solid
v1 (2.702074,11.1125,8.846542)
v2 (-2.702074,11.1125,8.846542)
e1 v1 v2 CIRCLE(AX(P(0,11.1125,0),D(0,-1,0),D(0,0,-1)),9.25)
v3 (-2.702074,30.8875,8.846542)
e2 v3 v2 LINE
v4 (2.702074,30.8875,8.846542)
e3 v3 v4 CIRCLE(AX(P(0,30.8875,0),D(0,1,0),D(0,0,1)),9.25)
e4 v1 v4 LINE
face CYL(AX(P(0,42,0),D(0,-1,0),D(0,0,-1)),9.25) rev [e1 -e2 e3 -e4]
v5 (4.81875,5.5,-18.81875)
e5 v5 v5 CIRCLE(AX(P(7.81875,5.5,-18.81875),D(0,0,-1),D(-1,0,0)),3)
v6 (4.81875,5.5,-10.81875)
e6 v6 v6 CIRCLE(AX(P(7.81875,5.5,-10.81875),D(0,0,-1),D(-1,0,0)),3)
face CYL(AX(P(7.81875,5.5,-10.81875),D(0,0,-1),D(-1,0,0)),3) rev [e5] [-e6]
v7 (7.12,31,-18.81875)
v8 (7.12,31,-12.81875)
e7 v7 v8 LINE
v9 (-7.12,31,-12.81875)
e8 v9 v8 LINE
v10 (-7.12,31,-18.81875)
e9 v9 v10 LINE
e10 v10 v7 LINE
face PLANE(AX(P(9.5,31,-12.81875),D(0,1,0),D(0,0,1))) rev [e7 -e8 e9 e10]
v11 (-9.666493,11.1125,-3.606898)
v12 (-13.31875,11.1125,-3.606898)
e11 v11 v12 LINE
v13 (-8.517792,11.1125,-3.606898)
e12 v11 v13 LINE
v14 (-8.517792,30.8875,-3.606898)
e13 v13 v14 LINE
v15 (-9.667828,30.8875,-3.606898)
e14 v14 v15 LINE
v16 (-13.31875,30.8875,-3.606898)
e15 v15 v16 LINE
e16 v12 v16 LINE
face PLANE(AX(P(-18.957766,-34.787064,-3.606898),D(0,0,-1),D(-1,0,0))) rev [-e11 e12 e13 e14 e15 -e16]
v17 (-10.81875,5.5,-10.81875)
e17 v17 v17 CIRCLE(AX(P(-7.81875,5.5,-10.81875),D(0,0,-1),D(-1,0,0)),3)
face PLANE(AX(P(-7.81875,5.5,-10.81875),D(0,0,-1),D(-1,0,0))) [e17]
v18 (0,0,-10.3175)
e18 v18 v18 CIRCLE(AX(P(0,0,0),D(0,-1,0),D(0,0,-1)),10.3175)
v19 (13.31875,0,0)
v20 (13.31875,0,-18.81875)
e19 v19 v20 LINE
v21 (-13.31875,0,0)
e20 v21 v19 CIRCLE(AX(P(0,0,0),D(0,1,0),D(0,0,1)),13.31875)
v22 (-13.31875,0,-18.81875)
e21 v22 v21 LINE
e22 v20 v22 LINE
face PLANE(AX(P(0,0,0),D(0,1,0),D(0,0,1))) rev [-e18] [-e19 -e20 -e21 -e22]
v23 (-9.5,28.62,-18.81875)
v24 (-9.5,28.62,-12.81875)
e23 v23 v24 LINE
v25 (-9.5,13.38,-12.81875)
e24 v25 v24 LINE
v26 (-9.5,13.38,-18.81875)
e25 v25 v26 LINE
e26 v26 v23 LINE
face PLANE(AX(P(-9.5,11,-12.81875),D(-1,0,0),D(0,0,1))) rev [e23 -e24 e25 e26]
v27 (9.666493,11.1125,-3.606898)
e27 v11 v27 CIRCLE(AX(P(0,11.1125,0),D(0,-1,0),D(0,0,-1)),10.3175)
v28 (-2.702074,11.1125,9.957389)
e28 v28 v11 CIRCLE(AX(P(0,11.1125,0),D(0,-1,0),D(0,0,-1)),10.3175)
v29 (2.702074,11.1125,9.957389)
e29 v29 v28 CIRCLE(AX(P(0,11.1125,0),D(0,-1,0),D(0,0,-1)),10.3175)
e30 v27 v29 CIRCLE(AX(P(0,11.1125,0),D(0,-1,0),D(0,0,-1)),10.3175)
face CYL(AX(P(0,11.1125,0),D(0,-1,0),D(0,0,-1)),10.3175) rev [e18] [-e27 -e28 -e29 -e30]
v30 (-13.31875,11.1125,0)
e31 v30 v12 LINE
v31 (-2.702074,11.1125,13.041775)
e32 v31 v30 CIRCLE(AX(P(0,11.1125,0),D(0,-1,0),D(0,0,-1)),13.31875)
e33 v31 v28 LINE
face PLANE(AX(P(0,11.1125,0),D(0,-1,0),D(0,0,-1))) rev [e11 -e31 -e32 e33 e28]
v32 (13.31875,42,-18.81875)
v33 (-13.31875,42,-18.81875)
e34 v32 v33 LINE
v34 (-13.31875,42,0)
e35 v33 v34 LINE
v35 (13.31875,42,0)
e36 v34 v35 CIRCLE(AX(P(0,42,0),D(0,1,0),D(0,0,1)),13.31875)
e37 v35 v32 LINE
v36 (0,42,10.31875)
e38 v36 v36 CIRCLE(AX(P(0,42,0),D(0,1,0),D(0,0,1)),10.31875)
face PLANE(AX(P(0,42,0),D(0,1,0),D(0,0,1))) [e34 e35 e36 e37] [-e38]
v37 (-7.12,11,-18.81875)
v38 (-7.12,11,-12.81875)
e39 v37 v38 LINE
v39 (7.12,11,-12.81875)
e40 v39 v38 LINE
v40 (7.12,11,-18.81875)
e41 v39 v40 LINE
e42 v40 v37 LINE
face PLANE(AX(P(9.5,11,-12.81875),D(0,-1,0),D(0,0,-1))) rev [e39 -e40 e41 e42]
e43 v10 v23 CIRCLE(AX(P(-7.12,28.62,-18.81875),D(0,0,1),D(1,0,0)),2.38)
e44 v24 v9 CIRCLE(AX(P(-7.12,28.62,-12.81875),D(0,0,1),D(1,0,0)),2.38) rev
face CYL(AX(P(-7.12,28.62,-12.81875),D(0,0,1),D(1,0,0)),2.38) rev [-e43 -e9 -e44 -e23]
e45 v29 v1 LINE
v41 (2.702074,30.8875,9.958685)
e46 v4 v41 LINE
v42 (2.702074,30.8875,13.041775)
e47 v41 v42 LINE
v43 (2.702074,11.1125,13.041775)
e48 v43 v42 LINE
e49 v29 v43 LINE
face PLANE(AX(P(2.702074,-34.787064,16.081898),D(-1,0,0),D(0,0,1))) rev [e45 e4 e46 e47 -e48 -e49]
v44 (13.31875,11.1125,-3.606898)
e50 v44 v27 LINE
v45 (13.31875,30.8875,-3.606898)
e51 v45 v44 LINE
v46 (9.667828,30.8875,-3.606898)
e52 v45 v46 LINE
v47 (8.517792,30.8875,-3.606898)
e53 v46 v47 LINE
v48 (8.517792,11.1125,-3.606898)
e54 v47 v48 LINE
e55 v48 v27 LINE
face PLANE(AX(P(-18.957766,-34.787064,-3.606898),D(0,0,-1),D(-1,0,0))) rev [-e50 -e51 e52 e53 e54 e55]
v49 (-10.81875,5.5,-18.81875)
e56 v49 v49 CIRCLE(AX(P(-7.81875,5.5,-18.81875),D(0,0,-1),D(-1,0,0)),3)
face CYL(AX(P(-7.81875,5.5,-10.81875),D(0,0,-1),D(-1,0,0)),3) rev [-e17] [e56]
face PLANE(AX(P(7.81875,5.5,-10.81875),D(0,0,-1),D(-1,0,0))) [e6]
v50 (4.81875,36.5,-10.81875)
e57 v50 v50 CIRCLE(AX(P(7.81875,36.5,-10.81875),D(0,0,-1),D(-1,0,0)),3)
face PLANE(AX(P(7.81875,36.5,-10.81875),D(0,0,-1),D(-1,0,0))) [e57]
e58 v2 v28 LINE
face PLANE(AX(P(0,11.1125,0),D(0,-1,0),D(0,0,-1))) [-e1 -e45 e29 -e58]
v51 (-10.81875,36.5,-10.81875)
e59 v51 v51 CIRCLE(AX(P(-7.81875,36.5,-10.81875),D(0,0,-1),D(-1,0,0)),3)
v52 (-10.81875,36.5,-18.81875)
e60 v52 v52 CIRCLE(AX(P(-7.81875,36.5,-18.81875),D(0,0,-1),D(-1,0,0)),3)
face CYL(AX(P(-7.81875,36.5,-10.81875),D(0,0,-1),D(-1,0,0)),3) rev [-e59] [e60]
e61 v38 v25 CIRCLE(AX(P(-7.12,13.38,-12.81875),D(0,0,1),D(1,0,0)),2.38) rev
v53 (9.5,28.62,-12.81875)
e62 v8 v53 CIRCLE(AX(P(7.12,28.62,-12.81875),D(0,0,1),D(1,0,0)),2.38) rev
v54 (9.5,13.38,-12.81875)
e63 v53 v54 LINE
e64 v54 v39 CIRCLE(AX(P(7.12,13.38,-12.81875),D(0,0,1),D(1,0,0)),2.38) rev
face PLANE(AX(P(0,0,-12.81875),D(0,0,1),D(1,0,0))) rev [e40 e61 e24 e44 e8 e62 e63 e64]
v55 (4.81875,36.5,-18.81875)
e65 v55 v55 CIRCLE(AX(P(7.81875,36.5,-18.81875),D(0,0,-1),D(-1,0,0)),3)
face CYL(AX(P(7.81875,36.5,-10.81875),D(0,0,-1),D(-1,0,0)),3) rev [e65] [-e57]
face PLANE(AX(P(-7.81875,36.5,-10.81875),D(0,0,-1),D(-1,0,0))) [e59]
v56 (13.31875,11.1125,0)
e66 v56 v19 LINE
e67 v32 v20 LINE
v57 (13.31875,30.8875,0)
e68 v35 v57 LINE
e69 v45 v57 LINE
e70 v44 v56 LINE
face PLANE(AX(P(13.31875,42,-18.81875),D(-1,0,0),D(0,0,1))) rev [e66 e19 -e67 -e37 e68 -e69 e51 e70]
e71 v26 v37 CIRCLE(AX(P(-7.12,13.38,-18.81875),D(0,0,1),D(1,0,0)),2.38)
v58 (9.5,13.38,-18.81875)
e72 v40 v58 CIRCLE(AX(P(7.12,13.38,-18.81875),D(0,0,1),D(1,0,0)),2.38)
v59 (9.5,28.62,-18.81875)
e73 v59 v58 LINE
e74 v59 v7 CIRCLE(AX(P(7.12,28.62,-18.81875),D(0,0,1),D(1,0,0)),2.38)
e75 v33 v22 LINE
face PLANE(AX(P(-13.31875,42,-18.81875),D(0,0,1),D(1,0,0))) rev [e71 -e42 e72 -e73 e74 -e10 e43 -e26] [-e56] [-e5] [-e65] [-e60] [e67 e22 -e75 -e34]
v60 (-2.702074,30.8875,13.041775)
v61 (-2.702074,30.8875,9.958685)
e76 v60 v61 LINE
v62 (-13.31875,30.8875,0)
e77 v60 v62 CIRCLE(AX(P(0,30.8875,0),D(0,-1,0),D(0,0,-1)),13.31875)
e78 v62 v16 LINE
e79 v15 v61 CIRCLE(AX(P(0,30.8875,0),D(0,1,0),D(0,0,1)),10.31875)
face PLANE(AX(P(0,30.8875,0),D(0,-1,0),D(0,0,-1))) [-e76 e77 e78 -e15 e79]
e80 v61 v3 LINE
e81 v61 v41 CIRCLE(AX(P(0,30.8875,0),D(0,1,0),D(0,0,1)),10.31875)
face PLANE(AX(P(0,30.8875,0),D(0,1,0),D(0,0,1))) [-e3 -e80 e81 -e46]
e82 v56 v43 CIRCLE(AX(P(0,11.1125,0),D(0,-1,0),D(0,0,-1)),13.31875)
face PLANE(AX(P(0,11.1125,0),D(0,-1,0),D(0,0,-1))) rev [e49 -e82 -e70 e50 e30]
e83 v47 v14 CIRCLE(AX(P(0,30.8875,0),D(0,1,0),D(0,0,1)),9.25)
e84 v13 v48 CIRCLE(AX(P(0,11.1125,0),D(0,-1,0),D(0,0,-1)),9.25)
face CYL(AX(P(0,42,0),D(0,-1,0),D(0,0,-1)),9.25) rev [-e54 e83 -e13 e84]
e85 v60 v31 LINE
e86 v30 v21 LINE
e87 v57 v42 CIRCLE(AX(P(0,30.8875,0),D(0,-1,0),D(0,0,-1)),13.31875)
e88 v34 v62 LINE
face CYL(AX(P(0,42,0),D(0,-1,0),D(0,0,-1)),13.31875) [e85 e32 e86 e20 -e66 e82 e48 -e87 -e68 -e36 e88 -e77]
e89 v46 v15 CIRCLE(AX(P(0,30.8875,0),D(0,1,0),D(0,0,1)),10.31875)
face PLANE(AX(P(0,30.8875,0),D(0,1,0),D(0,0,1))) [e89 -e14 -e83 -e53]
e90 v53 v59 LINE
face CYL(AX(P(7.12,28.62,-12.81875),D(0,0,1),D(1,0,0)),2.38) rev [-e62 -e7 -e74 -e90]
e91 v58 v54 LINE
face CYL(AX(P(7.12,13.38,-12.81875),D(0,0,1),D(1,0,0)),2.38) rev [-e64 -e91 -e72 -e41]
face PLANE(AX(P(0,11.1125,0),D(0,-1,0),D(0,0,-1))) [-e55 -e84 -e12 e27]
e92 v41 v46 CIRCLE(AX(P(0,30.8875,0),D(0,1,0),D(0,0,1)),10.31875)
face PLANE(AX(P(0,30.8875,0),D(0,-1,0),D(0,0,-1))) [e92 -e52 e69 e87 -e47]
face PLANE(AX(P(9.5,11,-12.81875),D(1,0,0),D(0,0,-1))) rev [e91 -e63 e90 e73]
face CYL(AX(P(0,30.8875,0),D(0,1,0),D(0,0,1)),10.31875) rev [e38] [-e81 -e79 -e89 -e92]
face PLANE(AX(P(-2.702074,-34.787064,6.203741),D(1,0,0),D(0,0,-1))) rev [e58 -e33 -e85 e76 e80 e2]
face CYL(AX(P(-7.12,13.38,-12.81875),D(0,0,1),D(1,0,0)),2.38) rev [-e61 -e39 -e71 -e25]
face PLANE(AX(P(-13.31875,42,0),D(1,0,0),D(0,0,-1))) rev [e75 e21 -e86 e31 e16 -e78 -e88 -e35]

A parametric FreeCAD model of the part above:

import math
import FreeCAD as App
import Part
import Sketcher

V = App.Vector
Q = App.Units.Quantity


def edges_at(feature, points):
    """Names of the edges that pass closest to the given points."""
    edges = feature.Shape.Edges
    near = lambda p: min(range(len(edges)), key=lambda i: edges[i].distToShape(Part.Vertex(*p))[0])
    return sorted({f"Edge{near(p) + 1}" for p in points})


def add_polygon(sketch, points):
    """Adds a closed chain of lines whose ends are joined by coincident constraints."""
    first, n = sketch.GeometryCount, len(points)
    for a, b in zip(points, points[1:] + points[:1]):
        sketch.addGeometry(Part.LineSegment(App.Vector(*a, 0), App.Vector(*b, 0)), False)
    for i in range(n):
        sketch.addConstraint(Sketcher.Constraint("Coincident", first + i, 2, first + (i + 1) % n, 1))

doc = App.newDocument("Part")
body = doc.addObject("PartDesign::Body", "Body")

# Sketch on XZ plane
sketch1 = doc.addObject("Sketcher::SketchObject", "Sketch")
body.addObject(sketch1)
sketch1.AttachmentSupport = (doc.XZ_Plane, [""])
sketch1.MapMode = "FlatFace"
sketch1.addGeometry(Part.LineSegment(V(-13, -19, 0), V(-13, 0, 0)), False)
sketch1.addGeometry(Part.ArcOfCircle(Part.Circle(V(0, 0, 0), V(0, 0, 1), 13), math.radians(0), math.radians(180)), False)
sketch1.addGeometry(Part.LineSegment(V(13, 0, 0), V(13, -19, 0)), False)
sketch1.addGeometry(Part.LineSegment(V(13, -19, 0), V(-13, -19, 0)), False)
sketch1.addGeometry(Part.Circle(V(0, 0, 0), V(0, 0, 1), 9), False)
sketch1.addConstraint(Sketcher.Constraint("Tangent", 0, 2, 1, 2))
sketch1.addConstraint(Sketcher.Constraint("Tangent", 1, 1, 2, 1))
sketch1.addConstraint(Sketcher.Constraint("Coincident", 2, 2, 3, 1))
sketch1.addConstraint(Sketcher.Constraint("Coincident", 3, 2, 0, 1))
sketch1.addConstraint(Sketcher.Constraint("Vertical", 0))
sketch1.addConstraint(Sketcher.Constraint("Vertical", 2))
sketch1.addConstraint(Sketcher.Constraint("Horizontal", 3))
sketch1.addConstraint(Sketcher.Constraint("Coincident", 1, 3, -1, 1))
sketch1.addConstraint(Sketcher.Constraint("Coincident", 4, 3, -1, 1))
sketch1.addConstraint(Sketcher.Constraint("Diameter", 4, Q("18.5 mm")))
sketch1.addConstraint(Sketcher.Constraint("Radius", 1, Q("13.31875 mm")))
sketch1.addConstraint(Sketcher.Constraint("DistanceY", 0, 1, 0, 2, Q("18.81875 mm")))
pad1 = doc.addObject("PartDesign::Pad", "Pad")
body.addObject(pad1)
pad1.Profile = sketch1
pad1.Length = 42
pad1.Reversed = True

# Sketch on XZ plane
sketch2 = doc.addObject("Sketcher::SketchObject", "Sketch001")
body.addObject(sketch2)
sketch2.AttachmentSupport = (doc.XZ_Plane, [""])
sketch2.MapMode = "FlatFace"
sketch2.AttachmentOffset = App.Placement(V(0, 0, -42), App.Rotation())
sketch2.addGeometry(Part.Circle(V(0, 0, 0), V(0, 0, 1), 10), False)
sketch2.addConstraint(Sketcher.Constraint("Coincident", 0, 3, -1, 1))
sketch2.addConstraint(Sketcher.Constraint("Diameter", 0, Q("20.6375 mm")))
pocket1 = doc.addObject("PartDesign::Pocket", "Pocket")
body.addObject(pocket1)
pocket1.Profile = sketch2
pocket1.Length = 11.1125
pocket1.Reversed = True

# Sketch on XZ plane
sketch3 = doc.addObject("Sketcher::SketchObject", "Sketch002")
body.addObject(sketch3)
sketch3.AttachmentSupport = (doc.XZ_Plane, [""])
sketch3.MapMode = "FlatFace"
sketch3.addGeometry(Part.Circle(V(0, 0, 0), V(0, 0, 1), 10), False)
sketch3.addConstraint(Sketcher.Constraint("Coincident", 0, 3, -1, 1))
sketch3.addConstraint(Sketcher.Constraint("Diameter", 0, Q("20.635 mm")))
pocket2 = doc.addObject("PartDesign::Pocket", "Pocket001")
body.addObject(pocket2)
pocket2.Profile = sketch3
pocket2.Length = 11.1125

# Sketch on XZ plane
sketch4 = doc.addObject("Sketcher::SketchObject", "Sketch003")
body.addObject(sketch4)
sketch4.AttachmentSupport = (doc.XZ_Plane, [""])
sketch4.MapMode = "FlatFace"
sketch4.AttachmentOffset = App.Placement(V(0, 0, -30.8875), App.Rotation())
add_polygon(sketch4, [(-3, 6), (3, 6), (3, 16), (23, 16), (23, -4), (-19, -4), (-19, 16), (-3, 16)])  # lines 0-7
sketch4.addConstraint(Sketcher.Constraint("Horizontal", 0))
sketch4.addConstraint(Sketcher.Constraint("Vertical", 1))
sketch4.addConstraint(Sketcher.Constraint("Horizontal", 2))
sketch4.addConstraint(Sketcher.Constraint("Vertical", 3))
sketch4.addConstraint(Sketcher.Constraint("Horizontal", 4))
sketch4.addConstraint(Sketcher.Constraint("Vertical", 5))
sketch4.addConstraint(Sketcher.Constraint("Horizontal", 6))
sketch4.addConstraint(Sketcher.Constraint("Vertical", 7))
sketch4.addConstraint(Sketcher.Constraint("Symmetric", 1, 2, 6, 2, -2))
sketch4.addConstraint(Sketcher.Constraint("DistanceY", -1, 1, 1, 2, Q("16.081898 mm")))
sketch4.addConstraint(Sketcher.Constraint("DistanceX", 0, 1, 0, 2, Q("5.404147 mm")))
sketch4.addConstraint(Sketcher.Constraint("DistanceX", 2, 1, 2, 2, Q("19.802448 mm")))
sketch4.addConstraint(Sketcher.Constraint("DistanceX", 4, 2, 4, 1, Q("41.462288 mm")))
sketch4.addConstraint(Sketcher.Constraint("DistanceY", 1, 1, 1, 2, Q("9.878157 mm")))
sketch4.addConstraint(Sketcher.Constraint("DistanceY", 3, 2, 3, 1, Q("19.688796 mm")))
pocket3 = doc.addObject("PartDesign::Pocket", "Pocket002")
body.addObject(pocket3)
pocket3.Profile = sketch4
pocket3.Length = 19.775
pocket3.Reversed = True

# Sketch on XY plane
sketch5 = doc.addObject("Sketcher::SketchObject", "Sketch004")
body.addObject(sketch5)
sketch5.AttachmentSupport = (doc.XY_Plane, [""])
sketch5.MapMode = "FlatFace"
sketch5.AttachmentOffset = App.Placement(V(0, 0, -18.81875), App.Rotation())
sketch5.addGeometry(Part.Circle(V(7.8, 5.5, 0), V(0, 0, 1), 3), False)
sketch5.addGeometry(Part.Circle(V(-7.8, 5.5, 0), V(0, 0, 1), 3), False)
sketch5.addGeometry(Part.Circle(V(-7.8, 36.5, 0), V(0, 0, 1), 3), False)
sketch5.addGeometry(Part.Circle(V(7.8, 36.5, 0), V(0, 0, 1), 3), False)
sketch5.addConstraint(Sketcher.Constraint("Equal", 0, 1))
sketch5.addConstraint(Sketcher.Constraint("Equal", 1, 2))
sketch5.addConstraint(Sketcher.Constraint("Equal", 2, 3))
sketch5.addConstraint(Sketcher.Constraint("Symmetric", 0, 3, 1, 3, -2))
sketch5.addConstraint(Sketcher.Constraint("Symmetric", 2, 3, 3, 3, -2))
sketch5.addConstraint(Sketcher.Constraint("Vertical", 1, 3, 2, 3))
sketch5.addConstraint(Sketcher.Constraint("Diameter", 0, Q("6 mm")))
sketch5.addConstraint(Sketcher.Constraint("DistanceY", 1, 3, 2, 3, Q("31 mm")))
sketch5.addConstraint(Sketcher.Constraint("DistanceY", -1, 1, 0, 3, Q("5.5 mm")))
sketch5.addConstraint(Sketcher.Constraint("DistanceX", 1, 3, 0, 3, Q("15.6375 mm")))
pocket4 = doc.addObject("PartDesign::Pocket", "Pocket003")
body.addObject(pocket4)
pocket4.Profile = sketch5
pocket4.Length = 8
pocket4.Reversed = True

# Sketch on XY plane
sketch6 = doc.addObject("Sketcher::SketchObject", "Sketch005")
body.addObject(sketch6)
sketch6.AttachmentSupport = (doc.XY_Plane, [""])
sketch6.MapMode = "FlatFace"
sketch6.AttachmentOffset = App.Placement(V(0, 0, -18.81875), App.Rotation())
add_polygon(sketch6, [(10, 31), (10, 11), (-10, 11), (-10, 31)])  # lines 0-3
sketch6.addConstraint(Sketcher.Constraint("Vertical", 0))
sketch6.addConstraint(Sketcher.Constraint("Horizontal", 1))
sketch6.addConstraint(Sketcher.Constraint("Vertical", 2))
sketch6.addConstraint(Sketcher.Constraint("Horizontal", 3))
sketch6.addConstraint(Sketcher.Constraint("DistanceX", 1, 2, 1, 1, Q("19 mm")))
sketch6.addConstraint(Sketcher.Constraint("DistanceY", 0, 2, 0, 1, Q("20 mm")))
sketch6.addConstraint(Sketcher.Constraint("DistanceY", -1, 1, 0, 2, Q("11 mm")))
sketch6.addConstraint(Sketcher.Constraint("DistanceX", -1, 1, 0, 2, Q("9.5 mm")))
pocket5 = doc.addObject("PartDesign::Pocket", "Pocket004")
body.addObject(pocket5)
pocket5.Profile = sketch6
pocket5.Length = 6
pocket5.Reversed = True
doc.recompute()

fillet = doc.addObject("PartDesign::Fillet", "Fillet")
body.addObject(fillet)
fillet.Base = (pocket5, edges_at(pocket5, [
    (-9.5, 31, -15.819),
    (-9.5, 11, -15.819),
    (9.5, 11, -15.819),
    (9.5, 31, -15.819),
]))
fillet.Radius = 2.38

doc.recompute()
